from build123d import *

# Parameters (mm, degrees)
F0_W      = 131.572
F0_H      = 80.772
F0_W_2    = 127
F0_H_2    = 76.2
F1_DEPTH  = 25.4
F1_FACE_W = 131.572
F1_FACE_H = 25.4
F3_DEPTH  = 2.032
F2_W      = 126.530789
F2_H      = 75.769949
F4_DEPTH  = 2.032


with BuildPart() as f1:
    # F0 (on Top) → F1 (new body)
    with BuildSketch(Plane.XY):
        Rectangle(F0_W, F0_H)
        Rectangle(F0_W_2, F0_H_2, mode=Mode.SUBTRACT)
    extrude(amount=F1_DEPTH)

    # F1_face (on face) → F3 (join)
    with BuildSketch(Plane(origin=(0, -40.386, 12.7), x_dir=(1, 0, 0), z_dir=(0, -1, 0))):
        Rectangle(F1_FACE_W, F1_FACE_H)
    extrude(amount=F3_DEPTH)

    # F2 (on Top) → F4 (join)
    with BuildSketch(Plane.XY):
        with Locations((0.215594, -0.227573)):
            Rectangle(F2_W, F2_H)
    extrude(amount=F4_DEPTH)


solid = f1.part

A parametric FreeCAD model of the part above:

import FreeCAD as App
import Part
import Sketcher
from FreeCAD import Vector
Q = App.Units.Quantity


def add_polygon(sketch, points):
    """Adds a closed chain of lines whose ends are joined by coincident constraints."""
    first, n = sketch.GeometryCount, len(points)
    for a, b in zip(points, points[1:] + points[:1]):
        sketch.addGeometry(Part.LineSegment(App.Vector(*a, 0), App.Vector(*b, 0)), False)
    for i in range(n):
        sketch.addConstraint(Sketcher.Constraint("Coincident", first + i, 2, first + (i + 1) % n, 1))

doc = App.newDocument("Part")
params = doc.addObject("Spreadsheet::Sheet", "Params")
for row, (alias, value) in enumerate([
    ("sketch1_width", "5 in"),
    ("sketch1_height", "3 in"),
    ("sketch1_width2", "5.18 in"),
    ("sketch1_height2", "3.18 in"),
    ("pad1_length", "1 in"),
    ("sketch2_height", "1 in"),
    ("sketch2_width", "5.18 in"),
    ("pad2_length", "0.08 in"),
    ("pad3_length", "0.08 in"),
], start=1):
    params.set(f"A{row}", alias)
    params.set(f"B{row}", "=" + value)
    params.setAlias(f"B{row}", alias)

body = doc.addObject("PartDesign::Body", "Body")

# Sketch on XY plane
sketch1 = doc.addObject("Sketcher::SketchObject", "Sketch")
body.addObject(sketch1)
sketch1.AttachmentSupport = (doc.XY_Plane, [""])
sketch1.MapMode = "FlatFace"
add_polygon(sketch1, [(-66, 40), (-66, -40), (66, -40), (66, 40)])  # lines 0-3
add_polygon(sketch1, [(64, -38), (-64, -38), (-64, 38), (64, 38)])  # lines 4-7
sketch1.addConstraint([
    Sketcher.Constraint("Vertical", 0),
    Sketcher.Constraint("Horizontal", 1),
    Sketcher.Constraint("Vertical", 2),
    Sketcher.Constraint("Horizontal", 3),
    Sketcher.Constraint("Horizontal", 4),
    Sketcher.Constraint("Vertical", 5),
    Sketcher.Constraint("Horizontal", 6),
    Sketcher.Constraint("Vertical", 7),
    Sketcher.Constraint("Symmetric", 0, 2, 2, 2, -1, 1),
    Sketcher.Constraint("Symmetric", 4, 2, 6, 2, -1, 1),
    Sketcher.Constraint("DistanceX", 4, 2, 4, 1, Q("5 in")),
    Sketcher.Constraint("DistanceY", 5, 1, 5, 2, Q("3 in")),
    Sketcher.Constraint("DistanceX", 1, 1, 1, 2, Q("5.18 in")),
    Sketcher.Constraint("DistanceY", 0, 2, 0, 1, Q("3.18 in")),
])
sketch1.setExpression("Constraints[18]", "Params.sketch1_width")
sketch1.setExpression("Constraints[19]", "Params.sketch1_height")
sketch1.setExpression("Constraints[20]", "Params.sketch1_width2")
sketch1.setExpression("Constraints[21]", "Params.sketch1_height2")
pad1 = doc.addObject("PartDesign::Pad", "Pad")
body.addObject(pad1)
pad1.Profile = sketch1
pad1.setExpression("Length", "Params.pad1_length")

# Sketch on XZ plane
sketch2 = doc.addObject("Sketcher::SketchObject", "Sketch001")
body.addObject(sketch2)
sketch2.AttachmentSupport = (doc.XZ_Plane, [""])
sketch2.MapMode = "FlatFace"
sketch2.AttachmentOffset = App.Placement(Vector(0, 0, 1.59 * 25.4), App.Rotation())
add_polygon(sketch2, [(-66, 25), (-66, 0), (66, 0), (66, 25)])  # lines 0-3
sketch2.addConstraint([
    Sketcher.Constraint("Vertical", 0),
    Sketcher.Constraint("Horizontal", 1),
    Sketcher.Constraint("Vertical", 2),
    Sketcher.Constraint("Horizontal", 3),
    Sketcher.Constraint("Symmetric", 0, 2, 1, 2, -1, 1),
    Sketcher.Constraint("DistanceY", 0, 2, 0, 1, Q("1 in")),
    Sketcher.Constraint("DistanceX", 1, 1, 1, 2, Q("5.18 in")),
])
sketch2.setExpression("Constraints[9]", "Params.sketch2_height")
sketch2.setExpression("Constraints[10]", "Params.sketch2_width")
pad2 = doc.addObject("PartDesign::Pad", "Pad001")
body.addObject(pad2)
pad2.Profile = sketch2
pad2.setExpression("Length", "Params.pad2_length")

# Sketch on XY plane
sketch3 = doc.addObject("Sketcher::SketchObject", "Sketch002")
body.addObject(sketch3)
sketch3.AttachmentSupport = (doc.XY_Plane, [""])
sketch3.MapMode = "FlatFace"
add_polygon(sketch3, [(-63, 38), (-63, -38), (63, -38), (63, 38)])  # lines 0-3
sketch3.addConstraint([
    Sketcher.Constraint("Vertical", 0),
    Sketcher.Constraint("Horizontal", 1),
    Sketcher.Constraint("Vertical", 2),
    Sketcher.Constraint("Horizontal", 3),
    Sketcher.Constraint("DistanceX", 1, 1, 1, 2, 126.530789),
    Sketcher.Constraint("DistanceY", 0, 2, 0, 1, 75.769949),
    Sketcher.Constraint("DistanceX", 0, 2, -1, 1, 63.049801),
    Sketcher.Constraint("DistanceY", -1, 1, 2, 2, 37.657401),
])
pad3 = doc.addObject("PartDesign::Pad", "Pad002")
body.addObject(pad3)
pad3.Profile = sketch3
pad3.setExpression("Length", "Params.pad3_length")

doc.recompute()
